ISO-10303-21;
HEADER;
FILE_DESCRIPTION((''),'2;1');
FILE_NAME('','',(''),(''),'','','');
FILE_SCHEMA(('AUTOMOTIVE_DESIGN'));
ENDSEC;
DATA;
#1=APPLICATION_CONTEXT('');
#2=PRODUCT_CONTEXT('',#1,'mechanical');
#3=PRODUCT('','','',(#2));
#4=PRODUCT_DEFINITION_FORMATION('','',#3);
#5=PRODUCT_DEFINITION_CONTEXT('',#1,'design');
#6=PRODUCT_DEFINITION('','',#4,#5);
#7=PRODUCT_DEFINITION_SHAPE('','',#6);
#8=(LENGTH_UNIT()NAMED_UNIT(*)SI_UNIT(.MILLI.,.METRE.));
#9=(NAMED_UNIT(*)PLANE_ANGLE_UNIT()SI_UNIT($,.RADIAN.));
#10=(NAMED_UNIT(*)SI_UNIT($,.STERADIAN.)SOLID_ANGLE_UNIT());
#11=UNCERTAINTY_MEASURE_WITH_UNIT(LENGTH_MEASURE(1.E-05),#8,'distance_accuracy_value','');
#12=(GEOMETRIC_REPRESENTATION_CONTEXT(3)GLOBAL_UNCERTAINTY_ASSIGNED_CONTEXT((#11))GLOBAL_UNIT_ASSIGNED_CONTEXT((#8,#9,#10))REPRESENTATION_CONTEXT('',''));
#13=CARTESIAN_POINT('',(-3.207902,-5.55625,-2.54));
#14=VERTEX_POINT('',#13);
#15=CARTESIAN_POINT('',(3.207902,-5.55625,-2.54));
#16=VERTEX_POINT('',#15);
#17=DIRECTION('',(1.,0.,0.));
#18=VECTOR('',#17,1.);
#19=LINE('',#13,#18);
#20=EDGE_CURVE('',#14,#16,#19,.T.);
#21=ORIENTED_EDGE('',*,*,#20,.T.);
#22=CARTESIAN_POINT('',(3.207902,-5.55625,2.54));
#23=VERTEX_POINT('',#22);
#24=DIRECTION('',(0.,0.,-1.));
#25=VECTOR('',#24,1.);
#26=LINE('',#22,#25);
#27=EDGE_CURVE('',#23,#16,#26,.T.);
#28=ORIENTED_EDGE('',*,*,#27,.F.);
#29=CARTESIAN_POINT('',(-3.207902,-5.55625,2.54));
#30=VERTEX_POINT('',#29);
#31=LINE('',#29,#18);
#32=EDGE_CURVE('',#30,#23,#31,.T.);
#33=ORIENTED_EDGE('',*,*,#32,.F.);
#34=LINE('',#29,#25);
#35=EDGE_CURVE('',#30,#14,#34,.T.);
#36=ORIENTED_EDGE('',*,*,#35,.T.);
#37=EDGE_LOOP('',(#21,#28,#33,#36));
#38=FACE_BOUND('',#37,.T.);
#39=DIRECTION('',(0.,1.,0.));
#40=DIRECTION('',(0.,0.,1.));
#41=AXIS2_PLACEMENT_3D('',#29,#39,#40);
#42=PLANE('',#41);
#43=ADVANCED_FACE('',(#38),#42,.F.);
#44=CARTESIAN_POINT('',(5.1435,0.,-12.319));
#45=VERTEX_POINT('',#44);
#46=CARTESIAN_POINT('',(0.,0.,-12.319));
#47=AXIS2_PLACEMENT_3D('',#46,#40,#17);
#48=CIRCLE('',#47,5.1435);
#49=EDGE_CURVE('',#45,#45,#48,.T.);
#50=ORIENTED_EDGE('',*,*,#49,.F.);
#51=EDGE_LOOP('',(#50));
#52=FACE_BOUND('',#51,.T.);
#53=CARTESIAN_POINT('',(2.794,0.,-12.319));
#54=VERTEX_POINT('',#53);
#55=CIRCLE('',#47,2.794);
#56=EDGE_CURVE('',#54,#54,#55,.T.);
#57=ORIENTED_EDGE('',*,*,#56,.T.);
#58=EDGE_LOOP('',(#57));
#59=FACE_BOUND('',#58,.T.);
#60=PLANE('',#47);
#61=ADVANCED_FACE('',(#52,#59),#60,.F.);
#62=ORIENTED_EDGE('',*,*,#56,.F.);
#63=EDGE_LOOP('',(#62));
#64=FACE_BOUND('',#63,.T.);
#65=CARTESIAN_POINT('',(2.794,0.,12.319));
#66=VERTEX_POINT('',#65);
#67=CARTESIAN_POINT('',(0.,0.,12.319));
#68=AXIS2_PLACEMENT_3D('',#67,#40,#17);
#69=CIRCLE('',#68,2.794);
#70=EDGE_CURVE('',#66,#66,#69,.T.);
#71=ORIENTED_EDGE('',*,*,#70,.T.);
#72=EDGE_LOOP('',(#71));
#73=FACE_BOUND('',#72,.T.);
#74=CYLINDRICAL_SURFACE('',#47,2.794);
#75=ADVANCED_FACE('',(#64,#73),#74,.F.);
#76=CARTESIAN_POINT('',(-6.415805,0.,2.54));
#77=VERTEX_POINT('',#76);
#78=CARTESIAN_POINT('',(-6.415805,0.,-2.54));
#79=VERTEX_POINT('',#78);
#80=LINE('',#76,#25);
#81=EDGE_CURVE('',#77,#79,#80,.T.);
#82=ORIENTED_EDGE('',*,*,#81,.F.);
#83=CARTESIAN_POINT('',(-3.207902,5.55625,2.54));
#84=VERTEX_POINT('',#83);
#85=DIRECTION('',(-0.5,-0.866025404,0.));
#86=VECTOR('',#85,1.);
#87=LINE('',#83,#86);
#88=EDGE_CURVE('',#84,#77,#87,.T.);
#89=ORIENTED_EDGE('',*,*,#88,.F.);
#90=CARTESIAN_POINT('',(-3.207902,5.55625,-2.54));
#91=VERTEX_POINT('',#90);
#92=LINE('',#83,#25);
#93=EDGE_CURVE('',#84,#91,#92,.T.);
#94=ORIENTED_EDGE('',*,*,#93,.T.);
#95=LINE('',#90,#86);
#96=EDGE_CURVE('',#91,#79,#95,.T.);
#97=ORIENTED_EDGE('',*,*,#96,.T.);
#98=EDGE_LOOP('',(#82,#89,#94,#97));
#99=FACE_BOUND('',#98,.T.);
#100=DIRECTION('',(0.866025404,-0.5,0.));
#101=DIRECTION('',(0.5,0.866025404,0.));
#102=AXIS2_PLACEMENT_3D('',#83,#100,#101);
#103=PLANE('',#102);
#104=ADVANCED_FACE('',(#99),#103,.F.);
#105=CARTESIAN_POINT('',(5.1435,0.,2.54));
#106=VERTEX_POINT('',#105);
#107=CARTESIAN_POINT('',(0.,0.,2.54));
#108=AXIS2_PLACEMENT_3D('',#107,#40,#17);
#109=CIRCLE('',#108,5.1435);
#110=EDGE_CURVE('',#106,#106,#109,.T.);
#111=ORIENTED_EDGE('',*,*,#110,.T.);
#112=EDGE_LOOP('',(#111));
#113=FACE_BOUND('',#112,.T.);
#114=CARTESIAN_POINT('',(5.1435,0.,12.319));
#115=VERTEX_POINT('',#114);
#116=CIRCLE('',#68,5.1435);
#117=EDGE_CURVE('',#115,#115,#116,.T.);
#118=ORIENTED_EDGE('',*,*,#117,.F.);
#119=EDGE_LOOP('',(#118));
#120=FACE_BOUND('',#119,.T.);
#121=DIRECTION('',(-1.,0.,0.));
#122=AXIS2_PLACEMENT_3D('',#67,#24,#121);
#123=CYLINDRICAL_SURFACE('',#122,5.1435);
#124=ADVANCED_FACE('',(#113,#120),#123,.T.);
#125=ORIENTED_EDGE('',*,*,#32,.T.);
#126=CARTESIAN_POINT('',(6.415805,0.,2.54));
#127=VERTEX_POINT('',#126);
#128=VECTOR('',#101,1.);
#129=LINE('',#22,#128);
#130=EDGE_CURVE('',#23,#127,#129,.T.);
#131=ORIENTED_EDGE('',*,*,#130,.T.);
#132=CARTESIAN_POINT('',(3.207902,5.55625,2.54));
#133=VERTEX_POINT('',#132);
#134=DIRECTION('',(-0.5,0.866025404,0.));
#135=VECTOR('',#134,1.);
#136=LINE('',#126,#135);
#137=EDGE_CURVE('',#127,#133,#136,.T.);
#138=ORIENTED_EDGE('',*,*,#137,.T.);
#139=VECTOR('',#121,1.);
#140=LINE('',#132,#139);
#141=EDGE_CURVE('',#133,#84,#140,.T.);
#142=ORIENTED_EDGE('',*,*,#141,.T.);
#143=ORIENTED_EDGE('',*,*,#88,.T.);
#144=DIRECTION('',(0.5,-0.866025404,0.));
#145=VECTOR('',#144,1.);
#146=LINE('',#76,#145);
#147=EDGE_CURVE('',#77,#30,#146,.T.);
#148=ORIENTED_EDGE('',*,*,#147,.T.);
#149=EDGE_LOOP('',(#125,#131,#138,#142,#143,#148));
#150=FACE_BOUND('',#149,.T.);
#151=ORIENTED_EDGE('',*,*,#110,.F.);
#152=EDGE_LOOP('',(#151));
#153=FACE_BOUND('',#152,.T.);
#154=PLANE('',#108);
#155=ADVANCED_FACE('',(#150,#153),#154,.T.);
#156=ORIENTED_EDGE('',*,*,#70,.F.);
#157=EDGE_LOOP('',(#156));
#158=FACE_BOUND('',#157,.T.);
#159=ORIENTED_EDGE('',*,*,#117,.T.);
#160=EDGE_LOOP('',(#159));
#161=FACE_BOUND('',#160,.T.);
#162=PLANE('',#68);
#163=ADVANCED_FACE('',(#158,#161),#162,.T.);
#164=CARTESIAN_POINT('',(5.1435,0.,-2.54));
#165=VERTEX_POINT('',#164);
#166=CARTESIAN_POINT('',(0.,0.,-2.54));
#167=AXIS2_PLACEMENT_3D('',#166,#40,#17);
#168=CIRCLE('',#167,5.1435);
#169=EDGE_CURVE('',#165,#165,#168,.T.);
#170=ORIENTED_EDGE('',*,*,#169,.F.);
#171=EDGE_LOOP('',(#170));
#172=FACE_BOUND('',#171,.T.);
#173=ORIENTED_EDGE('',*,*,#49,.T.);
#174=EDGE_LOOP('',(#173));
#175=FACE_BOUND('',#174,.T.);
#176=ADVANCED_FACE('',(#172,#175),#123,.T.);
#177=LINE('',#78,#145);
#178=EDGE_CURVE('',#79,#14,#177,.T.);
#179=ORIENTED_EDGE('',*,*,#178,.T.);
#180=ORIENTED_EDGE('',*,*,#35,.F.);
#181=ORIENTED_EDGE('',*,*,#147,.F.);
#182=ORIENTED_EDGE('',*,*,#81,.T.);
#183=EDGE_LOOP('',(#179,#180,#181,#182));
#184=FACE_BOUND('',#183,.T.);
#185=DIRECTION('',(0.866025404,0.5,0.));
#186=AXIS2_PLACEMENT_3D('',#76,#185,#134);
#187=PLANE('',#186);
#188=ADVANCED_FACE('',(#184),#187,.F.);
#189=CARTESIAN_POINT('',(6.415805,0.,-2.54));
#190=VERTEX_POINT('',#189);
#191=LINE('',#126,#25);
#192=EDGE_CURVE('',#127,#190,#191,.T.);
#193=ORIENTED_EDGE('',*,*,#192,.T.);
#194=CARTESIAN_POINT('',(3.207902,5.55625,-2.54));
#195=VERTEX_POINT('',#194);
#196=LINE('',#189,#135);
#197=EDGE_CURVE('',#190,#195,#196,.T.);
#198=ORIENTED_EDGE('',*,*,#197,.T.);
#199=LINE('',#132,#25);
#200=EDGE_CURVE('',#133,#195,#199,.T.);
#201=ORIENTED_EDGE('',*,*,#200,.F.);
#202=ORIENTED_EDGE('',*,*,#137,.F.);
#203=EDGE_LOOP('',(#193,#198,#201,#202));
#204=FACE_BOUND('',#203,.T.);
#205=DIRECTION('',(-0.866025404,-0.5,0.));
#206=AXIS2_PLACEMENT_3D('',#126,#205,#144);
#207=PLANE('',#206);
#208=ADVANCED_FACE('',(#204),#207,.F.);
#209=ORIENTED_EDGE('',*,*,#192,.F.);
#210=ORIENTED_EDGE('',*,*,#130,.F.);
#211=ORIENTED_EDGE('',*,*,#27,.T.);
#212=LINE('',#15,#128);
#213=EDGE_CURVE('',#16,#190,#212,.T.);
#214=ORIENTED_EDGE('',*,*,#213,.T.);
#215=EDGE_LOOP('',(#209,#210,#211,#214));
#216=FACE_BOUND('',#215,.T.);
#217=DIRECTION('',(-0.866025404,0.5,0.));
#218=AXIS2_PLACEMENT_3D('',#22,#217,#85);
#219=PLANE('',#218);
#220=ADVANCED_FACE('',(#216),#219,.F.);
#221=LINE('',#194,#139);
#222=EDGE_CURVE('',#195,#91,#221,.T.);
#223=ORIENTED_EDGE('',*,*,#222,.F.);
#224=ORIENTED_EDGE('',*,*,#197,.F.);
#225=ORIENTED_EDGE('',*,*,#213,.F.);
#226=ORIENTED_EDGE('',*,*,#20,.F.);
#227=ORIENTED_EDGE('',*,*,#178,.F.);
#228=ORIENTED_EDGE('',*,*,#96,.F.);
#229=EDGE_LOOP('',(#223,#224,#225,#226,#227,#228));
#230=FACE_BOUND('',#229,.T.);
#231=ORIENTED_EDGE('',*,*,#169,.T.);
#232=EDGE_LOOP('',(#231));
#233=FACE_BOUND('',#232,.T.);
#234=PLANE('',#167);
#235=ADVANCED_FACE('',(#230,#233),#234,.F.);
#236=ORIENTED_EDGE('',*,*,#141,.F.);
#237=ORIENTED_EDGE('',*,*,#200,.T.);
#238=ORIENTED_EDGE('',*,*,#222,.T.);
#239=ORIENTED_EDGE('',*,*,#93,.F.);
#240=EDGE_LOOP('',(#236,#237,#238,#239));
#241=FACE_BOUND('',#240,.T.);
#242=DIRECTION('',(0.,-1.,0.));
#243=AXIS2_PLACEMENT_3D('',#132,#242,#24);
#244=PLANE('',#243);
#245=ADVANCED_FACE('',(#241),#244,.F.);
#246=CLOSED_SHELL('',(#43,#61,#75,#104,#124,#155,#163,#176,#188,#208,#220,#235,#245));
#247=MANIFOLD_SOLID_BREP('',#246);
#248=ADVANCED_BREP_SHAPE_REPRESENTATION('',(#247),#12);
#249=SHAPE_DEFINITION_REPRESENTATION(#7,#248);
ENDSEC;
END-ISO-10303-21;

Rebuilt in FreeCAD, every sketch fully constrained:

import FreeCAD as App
import Part
import Sketcher
Q = App.Units.Quantity


def add_polygon(sketch, points):
    """Adds a closed chain of lines whose ends are joined by coincident constraints."""
    first, n = sketch.GeometryCount, len(points)
    for a, b in zip(points, points[1:] + points[:1]):
        sketch.addGeometry(Part.LineSegment(App.Vector(*a, 0), App.Vector(*b, 0)), False)
    for i in range(n):
        sketch.addConstraint(Sketcher.Constraint("Coincident", first + i, 2, first + (i + 1) % n, 1))

doc = App.newDocument("Part")
body = doc.addObject("PartDesign::Body", "Body")

sketch1 = body.newObject("Sketcher::SketchObject", "Sketch")
sketch1.AttachmentSupport = (doc.getObject("XY_Plane"), [""])
sketch1.MapMode = "FlatFace"
sketch1.addGeometry(Part.Circle(App.Vector(0, 0, 0), App.Vector(0, 0, 1), 5), False)
sketch1.addConstraint(Sketcher.Constraint("Coincident", 0, 3, -1, 1))
sketch1.addConstraint(Sketcher.Constraint("Diameter", 0, Q("0.405 in")))
pad1 = body.newObject("PartDesign::Pad", "Pad")
pad1.Profile = sketch1
pad1.Length = Q("0.97 in")
pad1.Midplane = True

sketch2 = body.newObject("Sketcher::SketchObject", "Sketch001")
sketch2.AttachmentSupport = (doc.getObject("XY_Plane"), [""])
sketch2.MapMode = "FlatFace"
sketch2.AttachmentOffset = App.Placement(App.Vector(0, 0, 0.485 * 25.4), App.Rotation())
sketch2.addGeometry(Part.Circle(App.Vector(0, 0, 0), App.Vector(0, 0, 1), 2.8), False)
sketch2.addConstraint(Sketcher.Constraint("Coincident", 0, 3, -1, 1))
sketch2.addConstraint(Sketcher.Constraint("Diameter", 0, Q("0.22 in")))
pocket1 = body.newObject("PartDesign::Pocket", "Pocket")
pocket1.Profile = sketch2
pocket1.Type = "ThroughAll"

sketch3 = body.newObject("Sketcher::SketchObject", "Sketch002")
sketch3.AttachmentSupport = (doc.getObject("XY_Plane"), [""])
sketch3.MapMode = "FlatFace"
add_polygon(sketch3, [(3, 6), (-3, 6), (-6, 0), (-3, -6), (3, -6), (6, 0)])
sketch3.addConstraint(Sketcher.Constraint("Horizontal", 0))
sketch3.addConstraint(Sketcher.Constraint("Horizontal", 3))
sketch3.addConstraint(Sketcher.Constraint("Symmetric", 0, 2, 3, 2, -1, 1))
sketch3.addConstraint(Sketcher.Constraint("Symmetric", 1, 2, 4, 2, -1, 1))
sketch3.addConstraint(Sketcher.Constraint("PointOnObject", 1, 2, -1))
sketch3.addConstraint(Sketcher.Constraint("Parallel", 2, 5))
sketch3.addConstraint(Sketcher.Constraint("Vertical", 0, 2, 2, 2))
sketch3.addConstraint(Sketcher.Constraint("Angle", 1, Q("-120 deg")))
sketch3.addConstraint(Sketcher.Constraint("DistanceY", -1, 1, 0, 2, Q("0.21875 in")))
sketch3.addConstraint(Sketcher.Constraint("DistanceX", 0, 2, 0, 1, Q("6.415805 mm")))
pad2 = body.newObject("PartDesign::Pad", "Pad001")
pad2.Profile = sketch3
pad2.Length = Q("0.2 in")
pad2.Midplane = True

sketch4 = body.newObject("Sketcher::SketchObject", "Sketch003")
sketch4.AttachmentSupport = (doc.getObject("XY_Plane"), [""])
sketch4.MapMode = "FlatFace"
sketch4.AttachmentOffset = App.Placement(App.Vector(0, 0, 0.485 * 25.4), App.Rotation())
sketch4.addGeometry(Part.Circle(App.Vector(0, 0, 0), App.Vector(0, 0, 1), 2.8), False)
sketch4.addConstraint(Sketcher.Constraint("Coincident", 0, 3, -1, 1))
sketch4.addConstraint(Sketcher.Constraint("Diameter", 0, Q("0.22 in")))
pocket2 = body.newObject("PartDesign::Pocket", "Pocket001")
pocket2.Profile = sketch4
pocket2.Type = "ThroughAll"

doc.recompute()
